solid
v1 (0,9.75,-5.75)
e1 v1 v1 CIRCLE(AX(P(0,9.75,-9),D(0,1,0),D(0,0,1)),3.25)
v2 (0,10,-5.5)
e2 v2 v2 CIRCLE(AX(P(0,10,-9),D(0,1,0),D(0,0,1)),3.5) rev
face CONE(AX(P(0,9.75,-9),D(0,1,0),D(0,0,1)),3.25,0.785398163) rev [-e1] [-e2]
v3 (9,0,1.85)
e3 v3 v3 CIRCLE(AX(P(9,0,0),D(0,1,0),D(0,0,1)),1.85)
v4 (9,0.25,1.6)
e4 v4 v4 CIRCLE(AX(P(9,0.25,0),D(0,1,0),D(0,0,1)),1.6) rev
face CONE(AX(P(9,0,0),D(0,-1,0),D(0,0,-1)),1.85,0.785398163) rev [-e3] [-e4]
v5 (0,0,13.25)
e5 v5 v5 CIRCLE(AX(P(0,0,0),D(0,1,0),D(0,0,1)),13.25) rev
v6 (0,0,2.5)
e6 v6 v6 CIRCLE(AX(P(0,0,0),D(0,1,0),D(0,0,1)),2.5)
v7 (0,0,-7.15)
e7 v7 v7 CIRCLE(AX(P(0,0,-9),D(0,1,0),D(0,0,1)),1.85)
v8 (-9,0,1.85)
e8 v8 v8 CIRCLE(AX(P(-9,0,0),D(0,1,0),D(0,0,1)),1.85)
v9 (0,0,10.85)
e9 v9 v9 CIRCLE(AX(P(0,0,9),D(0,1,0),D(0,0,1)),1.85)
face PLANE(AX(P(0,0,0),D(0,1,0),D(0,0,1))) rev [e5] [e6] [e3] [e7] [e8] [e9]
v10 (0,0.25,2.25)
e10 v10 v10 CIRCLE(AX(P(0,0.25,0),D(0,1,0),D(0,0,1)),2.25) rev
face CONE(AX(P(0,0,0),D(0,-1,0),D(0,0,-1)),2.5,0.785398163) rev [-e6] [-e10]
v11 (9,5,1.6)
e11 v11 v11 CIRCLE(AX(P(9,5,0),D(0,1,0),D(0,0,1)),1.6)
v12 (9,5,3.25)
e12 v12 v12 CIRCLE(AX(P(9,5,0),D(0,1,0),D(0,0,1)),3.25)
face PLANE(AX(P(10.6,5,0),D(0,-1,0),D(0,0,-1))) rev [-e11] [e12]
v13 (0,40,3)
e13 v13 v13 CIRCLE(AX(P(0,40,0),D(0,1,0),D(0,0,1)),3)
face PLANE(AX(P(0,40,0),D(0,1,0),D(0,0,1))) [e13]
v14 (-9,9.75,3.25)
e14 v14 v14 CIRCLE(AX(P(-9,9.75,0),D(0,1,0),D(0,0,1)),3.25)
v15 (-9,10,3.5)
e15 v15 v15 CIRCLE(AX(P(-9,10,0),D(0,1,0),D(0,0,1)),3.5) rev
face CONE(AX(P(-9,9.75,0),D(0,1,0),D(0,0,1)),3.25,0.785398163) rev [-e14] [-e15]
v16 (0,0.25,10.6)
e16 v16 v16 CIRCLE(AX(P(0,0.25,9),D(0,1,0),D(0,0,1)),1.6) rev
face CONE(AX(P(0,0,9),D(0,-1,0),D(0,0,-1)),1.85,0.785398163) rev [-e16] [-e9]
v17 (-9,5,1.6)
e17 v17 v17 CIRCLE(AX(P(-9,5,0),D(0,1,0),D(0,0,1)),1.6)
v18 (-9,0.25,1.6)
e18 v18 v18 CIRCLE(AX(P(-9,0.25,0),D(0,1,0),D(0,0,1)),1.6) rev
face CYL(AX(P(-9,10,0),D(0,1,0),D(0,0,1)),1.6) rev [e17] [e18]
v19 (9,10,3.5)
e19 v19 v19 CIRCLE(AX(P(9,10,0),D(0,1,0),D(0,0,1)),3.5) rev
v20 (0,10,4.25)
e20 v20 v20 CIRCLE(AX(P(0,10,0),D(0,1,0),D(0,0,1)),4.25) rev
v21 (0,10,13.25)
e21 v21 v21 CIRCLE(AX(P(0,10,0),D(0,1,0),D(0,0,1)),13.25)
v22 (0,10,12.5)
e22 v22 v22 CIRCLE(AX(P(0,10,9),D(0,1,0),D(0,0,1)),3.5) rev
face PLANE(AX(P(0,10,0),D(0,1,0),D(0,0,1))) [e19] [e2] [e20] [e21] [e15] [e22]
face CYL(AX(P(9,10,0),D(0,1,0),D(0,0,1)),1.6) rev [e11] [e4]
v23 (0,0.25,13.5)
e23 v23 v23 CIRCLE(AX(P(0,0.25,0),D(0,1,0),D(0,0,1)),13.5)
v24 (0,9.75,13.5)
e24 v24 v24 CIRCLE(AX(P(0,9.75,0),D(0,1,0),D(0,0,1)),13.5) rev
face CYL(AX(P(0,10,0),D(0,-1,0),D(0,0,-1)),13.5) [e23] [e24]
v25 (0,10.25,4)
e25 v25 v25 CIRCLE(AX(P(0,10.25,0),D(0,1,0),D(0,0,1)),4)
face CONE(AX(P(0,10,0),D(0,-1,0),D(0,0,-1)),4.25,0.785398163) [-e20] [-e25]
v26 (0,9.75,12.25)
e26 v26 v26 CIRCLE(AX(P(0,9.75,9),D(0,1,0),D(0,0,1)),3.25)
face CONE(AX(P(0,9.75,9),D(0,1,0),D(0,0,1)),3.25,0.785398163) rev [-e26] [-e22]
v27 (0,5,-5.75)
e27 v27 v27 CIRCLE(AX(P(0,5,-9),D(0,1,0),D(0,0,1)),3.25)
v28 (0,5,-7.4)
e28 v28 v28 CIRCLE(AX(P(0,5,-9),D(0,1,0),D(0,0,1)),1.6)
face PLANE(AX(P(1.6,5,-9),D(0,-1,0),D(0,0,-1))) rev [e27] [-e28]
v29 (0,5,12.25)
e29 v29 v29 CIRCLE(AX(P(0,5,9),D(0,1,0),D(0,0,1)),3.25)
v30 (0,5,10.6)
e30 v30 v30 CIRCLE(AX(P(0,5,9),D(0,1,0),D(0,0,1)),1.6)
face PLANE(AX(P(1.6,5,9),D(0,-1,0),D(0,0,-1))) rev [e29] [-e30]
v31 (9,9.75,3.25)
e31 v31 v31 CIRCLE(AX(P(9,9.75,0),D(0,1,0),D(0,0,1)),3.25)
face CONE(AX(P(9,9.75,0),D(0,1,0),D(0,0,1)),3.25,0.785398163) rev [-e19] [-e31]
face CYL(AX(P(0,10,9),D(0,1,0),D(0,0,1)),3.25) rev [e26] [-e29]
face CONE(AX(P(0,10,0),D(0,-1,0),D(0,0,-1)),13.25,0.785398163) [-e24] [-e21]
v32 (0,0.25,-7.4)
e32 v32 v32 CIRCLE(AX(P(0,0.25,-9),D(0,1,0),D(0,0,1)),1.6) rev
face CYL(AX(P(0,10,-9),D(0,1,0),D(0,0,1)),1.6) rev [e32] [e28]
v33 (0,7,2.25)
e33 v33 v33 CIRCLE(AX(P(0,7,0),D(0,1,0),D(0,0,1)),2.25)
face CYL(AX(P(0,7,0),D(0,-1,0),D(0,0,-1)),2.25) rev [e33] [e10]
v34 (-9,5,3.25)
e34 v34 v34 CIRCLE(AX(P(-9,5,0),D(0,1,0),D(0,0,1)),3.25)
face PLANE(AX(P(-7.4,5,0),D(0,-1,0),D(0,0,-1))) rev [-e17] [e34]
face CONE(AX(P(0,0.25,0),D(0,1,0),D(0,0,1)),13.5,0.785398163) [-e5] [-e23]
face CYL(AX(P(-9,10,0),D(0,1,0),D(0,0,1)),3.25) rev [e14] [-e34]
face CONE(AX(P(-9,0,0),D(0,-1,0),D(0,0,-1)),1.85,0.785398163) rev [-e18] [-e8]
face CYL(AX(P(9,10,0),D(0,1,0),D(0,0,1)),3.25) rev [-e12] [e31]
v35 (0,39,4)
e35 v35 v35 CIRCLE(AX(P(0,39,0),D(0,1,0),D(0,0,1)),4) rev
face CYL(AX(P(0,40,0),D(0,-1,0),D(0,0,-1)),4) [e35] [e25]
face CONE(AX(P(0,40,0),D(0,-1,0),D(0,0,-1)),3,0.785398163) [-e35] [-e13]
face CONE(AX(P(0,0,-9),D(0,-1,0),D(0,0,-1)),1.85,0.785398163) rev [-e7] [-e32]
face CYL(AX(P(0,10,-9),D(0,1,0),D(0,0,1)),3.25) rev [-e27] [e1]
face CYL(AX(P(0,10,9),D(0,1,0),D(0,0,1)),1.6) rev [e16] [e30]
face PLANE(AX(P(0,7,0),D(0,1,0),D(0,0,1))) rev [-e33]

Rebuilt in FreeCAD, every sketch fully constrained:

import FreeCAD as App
import Part
import Sketcher
from FreeCAD import Vector


def edges_at(feature, points):
    """Names of the edges that pass closest to the given points."""
    edges = feature.Shape.Edges
    near = lambda p: min(range(len(edges)), key=lambda i: edges[i].distToShape(Part.Vertex(*p))[0])
    return sorted({f"Edge{near(p) + 1}" for p in points})

doc = App.newDocument("Part")
params = doc.addObject("Spreadsheet::Sheet", "Params")
for row, (alias, value) in enumerate([
    ("sketch1_diameter", "27 mm"),
    ("pad1_length", "10 mm"),
    ("sketch2_diameter", "8 mm"),
    ("pad2_length", "40 mm"),
    ("sketch3_diameter", "3.2 mm"),
    ("hole_diameter", "3.2 mm"),
    ("hole_cbore_diameter", "6.5 mm"),
    ("hole_cbore_depth", "5 mm"),
    ("sketch4_diameter", "4.5 mm"),
    ("pocket1_length", "7 mm"),
    ("chamfer_size", "0.25 mm"),
    ("chamfer2_size", "1 mm"),
], start=1):
    params.set(f"A{row}", alias)
    params.set(f"B{row}", "=" + value)
    params.setAlias(f"B{row}", alias)

body = doc.addObject("PartDesign::Body", "Body")

# Sketch on XZ plane
sketch1 = body.newObject("Sketcher::SketchObject", "Sketch")
sketch1.AttachmentSupport = (doc.getObject("XZ_Plane"), [""])
sketch1.MapMode = "FlatFace"
sketch1.addGeometry(Part.Circle(Vector(0, 0, 0), Vector(0, 0, 1), 14), False)
sketch1.addConstraint([
    Sketcher.Constraint("Coincident", 0, 3, -1, 1),
    Sketcher.Constraint("Diameter", 0, 27.0),
])
sketch1.setExpression("Constraints[1]", "Params.sketch1_diameter")
pad1 = body.newObject("PartDesign::Pad", "Pad")
pad1.Profile = sketch1
pad1.setExpression("Length", "Params.pad1_length")
pad1.Reversed = True

# Sketch on XZ plane
sketch2 = body.newObject("Sketcher::SketchObject", "Sketch001")
sketch2.AttachmentSupport = (doc.getObject("XZ_Plane"), [""])
sketch2.MapMode = "FlatFace"
sketch2.addGeometry(Part.Circle(Vector(0, 0, 0), Vector(0, 0, 1), 4), False)
sketch2.addConstraint([
    Sketcher.Constraint("Coincident", 0, 3, -1, 1),
    Sketcher.Constraint("Diameter", 0, 8.0),
])
sketch2.setExpression("Constraints[1]", "Params.sketch2_diameter")
pad2 = body.newObject("PartDesign::Pad", "Pad001")
pad2.Profile = sketch2
pad2.setExpression("Length", "Params.pad2_length")
pad2.Reversed = True

# Sketch on XZ plane
sketch3 = body.newObject("Sketcher::SketchObject", "Sketch002")
sketch3.AttachmentSupport = (doc.getObject("XZ_Plane"), [""])
sketch3.MapMode = "FlatFace"
sketch3.AttachmentOffset = App.Placement(Vector(0, 0, -10), App.Rotation())
sketch3.addGeometry([
    Part.Circle(Vector(-9, 0, 0), Vector(0, 0, 1), 1.6),
    Part.Circle(Vector(9, 0, 0), Vector(0, 0, 1), 1.6),
    Part.Circle(Vector(0, -9, 0), Vector(0, 0, 1), 1.6),
    Part.Circle(Vector(0, 9, 0), Vector(0, 0, 1), 1.6),
], False)
sketch3.addConstraint([
    Sketcher.Constraint("Equal", 0, 1),
    Sketcher.Constraint("Equal", 1, 2),
    Sketcher.Constraint("Equal", 2, 3),
    Sketcher.Constraint("Symmetric", 0, 3, 1, 3, -1, 1),
    Sketcher.Constraint("Symmetric", 2, 3, 3, 3, -1, 1),
    Sketcher.Constraint("PointOnObject", 0, 3, -1),
    Sketcher.Constraint("PointOnObject", 2, 3, -2),
    Sketcher.Constraint("Diameter", 0, 3.2),
    Sketcher.Constraint("DistanceX", 0, 3, -1, 1, 9.0),
    Sketcher.Constraint("DistanceY", 2, 3, -1, 1, 9.0),
])
sketch3.setExpression("Constraints[7]", "Params.sketch3_diameter")
doc.recompute()
hole = body.newObject("PartDesign::Hole", "Hole")
hole.Profile = sketch3
hole.ThreadType = "None"
hole.setExpression("Diameter", "Params.hole_diameter")
hole.DepthType = "ThroughAll"
hole.HoleCutType = "Counterbore"
hole.setExpression("HoleCutDiameter", "Params.hole_cbore_diameter")
hole.setExpression("HoleCutDepth", "Params.hole_cbore_depth")
hole.Reversed = True

# Sketch on XZ plane
sketch4 = body.newObject("Sketcher::SketchObject", "Sketch003")
sketch4.AttachmentSupport = (doc.getObject("XZ_Plane"), [""])
sketch4.MapMode = "FlatFace"
sketch4.addGeometry(Part.Circle(Vector(0, 0, 0), Vector(0, 0, 1), 2.2), False)
sketch4.addConstraint([
    Sketcher.Constraint("Coincident", 0, 3, -1, 1),
    Sketcher.Constraint("Diameter", 0, 4.5),
])
sketch4.setExpression("Constraints[1]", "Params.sketch4_diameter")
pocket1 = body.newObject("PartDesign::Pocket", "Pocket")
pocket1.Profile = sketch4
pocket1.setExpression("Length", "Params.pocket1_length")
doc.recompute()

chamfer = body.newObject("PartDesign::Chamfer", "Chamfer")
chamfer.Base = (pocket1, edges_at(pocket1, [
    (-3.25, 10, 9),
    (0, 0, -13.5),
    (1.6, 0, 9),
    (5.75, 10, 0),
    (10.6, 0, 0),
    (-3.25, 10, -9),
    (1.6, 0, -9),
    (-12.25, 10, 0),
    (-7.4, 0, 0),
    (0, 10, -13.5),
    (0, 0, -2.25),
    (0, 10, -4),
]))
chamfer.setExpression("Size", "Params.chamfer_size")
doc.recompute()

chamfer2 = body.newObject("PartDesign::Chamfer", "Chamfer001")
chamfer2.Base = (chamfer, edges_at(chamfer, [(0, 40, -4)]))
chamfer2.setExpression("Size", "Params.chamfer2_size")

doc.recompute()
